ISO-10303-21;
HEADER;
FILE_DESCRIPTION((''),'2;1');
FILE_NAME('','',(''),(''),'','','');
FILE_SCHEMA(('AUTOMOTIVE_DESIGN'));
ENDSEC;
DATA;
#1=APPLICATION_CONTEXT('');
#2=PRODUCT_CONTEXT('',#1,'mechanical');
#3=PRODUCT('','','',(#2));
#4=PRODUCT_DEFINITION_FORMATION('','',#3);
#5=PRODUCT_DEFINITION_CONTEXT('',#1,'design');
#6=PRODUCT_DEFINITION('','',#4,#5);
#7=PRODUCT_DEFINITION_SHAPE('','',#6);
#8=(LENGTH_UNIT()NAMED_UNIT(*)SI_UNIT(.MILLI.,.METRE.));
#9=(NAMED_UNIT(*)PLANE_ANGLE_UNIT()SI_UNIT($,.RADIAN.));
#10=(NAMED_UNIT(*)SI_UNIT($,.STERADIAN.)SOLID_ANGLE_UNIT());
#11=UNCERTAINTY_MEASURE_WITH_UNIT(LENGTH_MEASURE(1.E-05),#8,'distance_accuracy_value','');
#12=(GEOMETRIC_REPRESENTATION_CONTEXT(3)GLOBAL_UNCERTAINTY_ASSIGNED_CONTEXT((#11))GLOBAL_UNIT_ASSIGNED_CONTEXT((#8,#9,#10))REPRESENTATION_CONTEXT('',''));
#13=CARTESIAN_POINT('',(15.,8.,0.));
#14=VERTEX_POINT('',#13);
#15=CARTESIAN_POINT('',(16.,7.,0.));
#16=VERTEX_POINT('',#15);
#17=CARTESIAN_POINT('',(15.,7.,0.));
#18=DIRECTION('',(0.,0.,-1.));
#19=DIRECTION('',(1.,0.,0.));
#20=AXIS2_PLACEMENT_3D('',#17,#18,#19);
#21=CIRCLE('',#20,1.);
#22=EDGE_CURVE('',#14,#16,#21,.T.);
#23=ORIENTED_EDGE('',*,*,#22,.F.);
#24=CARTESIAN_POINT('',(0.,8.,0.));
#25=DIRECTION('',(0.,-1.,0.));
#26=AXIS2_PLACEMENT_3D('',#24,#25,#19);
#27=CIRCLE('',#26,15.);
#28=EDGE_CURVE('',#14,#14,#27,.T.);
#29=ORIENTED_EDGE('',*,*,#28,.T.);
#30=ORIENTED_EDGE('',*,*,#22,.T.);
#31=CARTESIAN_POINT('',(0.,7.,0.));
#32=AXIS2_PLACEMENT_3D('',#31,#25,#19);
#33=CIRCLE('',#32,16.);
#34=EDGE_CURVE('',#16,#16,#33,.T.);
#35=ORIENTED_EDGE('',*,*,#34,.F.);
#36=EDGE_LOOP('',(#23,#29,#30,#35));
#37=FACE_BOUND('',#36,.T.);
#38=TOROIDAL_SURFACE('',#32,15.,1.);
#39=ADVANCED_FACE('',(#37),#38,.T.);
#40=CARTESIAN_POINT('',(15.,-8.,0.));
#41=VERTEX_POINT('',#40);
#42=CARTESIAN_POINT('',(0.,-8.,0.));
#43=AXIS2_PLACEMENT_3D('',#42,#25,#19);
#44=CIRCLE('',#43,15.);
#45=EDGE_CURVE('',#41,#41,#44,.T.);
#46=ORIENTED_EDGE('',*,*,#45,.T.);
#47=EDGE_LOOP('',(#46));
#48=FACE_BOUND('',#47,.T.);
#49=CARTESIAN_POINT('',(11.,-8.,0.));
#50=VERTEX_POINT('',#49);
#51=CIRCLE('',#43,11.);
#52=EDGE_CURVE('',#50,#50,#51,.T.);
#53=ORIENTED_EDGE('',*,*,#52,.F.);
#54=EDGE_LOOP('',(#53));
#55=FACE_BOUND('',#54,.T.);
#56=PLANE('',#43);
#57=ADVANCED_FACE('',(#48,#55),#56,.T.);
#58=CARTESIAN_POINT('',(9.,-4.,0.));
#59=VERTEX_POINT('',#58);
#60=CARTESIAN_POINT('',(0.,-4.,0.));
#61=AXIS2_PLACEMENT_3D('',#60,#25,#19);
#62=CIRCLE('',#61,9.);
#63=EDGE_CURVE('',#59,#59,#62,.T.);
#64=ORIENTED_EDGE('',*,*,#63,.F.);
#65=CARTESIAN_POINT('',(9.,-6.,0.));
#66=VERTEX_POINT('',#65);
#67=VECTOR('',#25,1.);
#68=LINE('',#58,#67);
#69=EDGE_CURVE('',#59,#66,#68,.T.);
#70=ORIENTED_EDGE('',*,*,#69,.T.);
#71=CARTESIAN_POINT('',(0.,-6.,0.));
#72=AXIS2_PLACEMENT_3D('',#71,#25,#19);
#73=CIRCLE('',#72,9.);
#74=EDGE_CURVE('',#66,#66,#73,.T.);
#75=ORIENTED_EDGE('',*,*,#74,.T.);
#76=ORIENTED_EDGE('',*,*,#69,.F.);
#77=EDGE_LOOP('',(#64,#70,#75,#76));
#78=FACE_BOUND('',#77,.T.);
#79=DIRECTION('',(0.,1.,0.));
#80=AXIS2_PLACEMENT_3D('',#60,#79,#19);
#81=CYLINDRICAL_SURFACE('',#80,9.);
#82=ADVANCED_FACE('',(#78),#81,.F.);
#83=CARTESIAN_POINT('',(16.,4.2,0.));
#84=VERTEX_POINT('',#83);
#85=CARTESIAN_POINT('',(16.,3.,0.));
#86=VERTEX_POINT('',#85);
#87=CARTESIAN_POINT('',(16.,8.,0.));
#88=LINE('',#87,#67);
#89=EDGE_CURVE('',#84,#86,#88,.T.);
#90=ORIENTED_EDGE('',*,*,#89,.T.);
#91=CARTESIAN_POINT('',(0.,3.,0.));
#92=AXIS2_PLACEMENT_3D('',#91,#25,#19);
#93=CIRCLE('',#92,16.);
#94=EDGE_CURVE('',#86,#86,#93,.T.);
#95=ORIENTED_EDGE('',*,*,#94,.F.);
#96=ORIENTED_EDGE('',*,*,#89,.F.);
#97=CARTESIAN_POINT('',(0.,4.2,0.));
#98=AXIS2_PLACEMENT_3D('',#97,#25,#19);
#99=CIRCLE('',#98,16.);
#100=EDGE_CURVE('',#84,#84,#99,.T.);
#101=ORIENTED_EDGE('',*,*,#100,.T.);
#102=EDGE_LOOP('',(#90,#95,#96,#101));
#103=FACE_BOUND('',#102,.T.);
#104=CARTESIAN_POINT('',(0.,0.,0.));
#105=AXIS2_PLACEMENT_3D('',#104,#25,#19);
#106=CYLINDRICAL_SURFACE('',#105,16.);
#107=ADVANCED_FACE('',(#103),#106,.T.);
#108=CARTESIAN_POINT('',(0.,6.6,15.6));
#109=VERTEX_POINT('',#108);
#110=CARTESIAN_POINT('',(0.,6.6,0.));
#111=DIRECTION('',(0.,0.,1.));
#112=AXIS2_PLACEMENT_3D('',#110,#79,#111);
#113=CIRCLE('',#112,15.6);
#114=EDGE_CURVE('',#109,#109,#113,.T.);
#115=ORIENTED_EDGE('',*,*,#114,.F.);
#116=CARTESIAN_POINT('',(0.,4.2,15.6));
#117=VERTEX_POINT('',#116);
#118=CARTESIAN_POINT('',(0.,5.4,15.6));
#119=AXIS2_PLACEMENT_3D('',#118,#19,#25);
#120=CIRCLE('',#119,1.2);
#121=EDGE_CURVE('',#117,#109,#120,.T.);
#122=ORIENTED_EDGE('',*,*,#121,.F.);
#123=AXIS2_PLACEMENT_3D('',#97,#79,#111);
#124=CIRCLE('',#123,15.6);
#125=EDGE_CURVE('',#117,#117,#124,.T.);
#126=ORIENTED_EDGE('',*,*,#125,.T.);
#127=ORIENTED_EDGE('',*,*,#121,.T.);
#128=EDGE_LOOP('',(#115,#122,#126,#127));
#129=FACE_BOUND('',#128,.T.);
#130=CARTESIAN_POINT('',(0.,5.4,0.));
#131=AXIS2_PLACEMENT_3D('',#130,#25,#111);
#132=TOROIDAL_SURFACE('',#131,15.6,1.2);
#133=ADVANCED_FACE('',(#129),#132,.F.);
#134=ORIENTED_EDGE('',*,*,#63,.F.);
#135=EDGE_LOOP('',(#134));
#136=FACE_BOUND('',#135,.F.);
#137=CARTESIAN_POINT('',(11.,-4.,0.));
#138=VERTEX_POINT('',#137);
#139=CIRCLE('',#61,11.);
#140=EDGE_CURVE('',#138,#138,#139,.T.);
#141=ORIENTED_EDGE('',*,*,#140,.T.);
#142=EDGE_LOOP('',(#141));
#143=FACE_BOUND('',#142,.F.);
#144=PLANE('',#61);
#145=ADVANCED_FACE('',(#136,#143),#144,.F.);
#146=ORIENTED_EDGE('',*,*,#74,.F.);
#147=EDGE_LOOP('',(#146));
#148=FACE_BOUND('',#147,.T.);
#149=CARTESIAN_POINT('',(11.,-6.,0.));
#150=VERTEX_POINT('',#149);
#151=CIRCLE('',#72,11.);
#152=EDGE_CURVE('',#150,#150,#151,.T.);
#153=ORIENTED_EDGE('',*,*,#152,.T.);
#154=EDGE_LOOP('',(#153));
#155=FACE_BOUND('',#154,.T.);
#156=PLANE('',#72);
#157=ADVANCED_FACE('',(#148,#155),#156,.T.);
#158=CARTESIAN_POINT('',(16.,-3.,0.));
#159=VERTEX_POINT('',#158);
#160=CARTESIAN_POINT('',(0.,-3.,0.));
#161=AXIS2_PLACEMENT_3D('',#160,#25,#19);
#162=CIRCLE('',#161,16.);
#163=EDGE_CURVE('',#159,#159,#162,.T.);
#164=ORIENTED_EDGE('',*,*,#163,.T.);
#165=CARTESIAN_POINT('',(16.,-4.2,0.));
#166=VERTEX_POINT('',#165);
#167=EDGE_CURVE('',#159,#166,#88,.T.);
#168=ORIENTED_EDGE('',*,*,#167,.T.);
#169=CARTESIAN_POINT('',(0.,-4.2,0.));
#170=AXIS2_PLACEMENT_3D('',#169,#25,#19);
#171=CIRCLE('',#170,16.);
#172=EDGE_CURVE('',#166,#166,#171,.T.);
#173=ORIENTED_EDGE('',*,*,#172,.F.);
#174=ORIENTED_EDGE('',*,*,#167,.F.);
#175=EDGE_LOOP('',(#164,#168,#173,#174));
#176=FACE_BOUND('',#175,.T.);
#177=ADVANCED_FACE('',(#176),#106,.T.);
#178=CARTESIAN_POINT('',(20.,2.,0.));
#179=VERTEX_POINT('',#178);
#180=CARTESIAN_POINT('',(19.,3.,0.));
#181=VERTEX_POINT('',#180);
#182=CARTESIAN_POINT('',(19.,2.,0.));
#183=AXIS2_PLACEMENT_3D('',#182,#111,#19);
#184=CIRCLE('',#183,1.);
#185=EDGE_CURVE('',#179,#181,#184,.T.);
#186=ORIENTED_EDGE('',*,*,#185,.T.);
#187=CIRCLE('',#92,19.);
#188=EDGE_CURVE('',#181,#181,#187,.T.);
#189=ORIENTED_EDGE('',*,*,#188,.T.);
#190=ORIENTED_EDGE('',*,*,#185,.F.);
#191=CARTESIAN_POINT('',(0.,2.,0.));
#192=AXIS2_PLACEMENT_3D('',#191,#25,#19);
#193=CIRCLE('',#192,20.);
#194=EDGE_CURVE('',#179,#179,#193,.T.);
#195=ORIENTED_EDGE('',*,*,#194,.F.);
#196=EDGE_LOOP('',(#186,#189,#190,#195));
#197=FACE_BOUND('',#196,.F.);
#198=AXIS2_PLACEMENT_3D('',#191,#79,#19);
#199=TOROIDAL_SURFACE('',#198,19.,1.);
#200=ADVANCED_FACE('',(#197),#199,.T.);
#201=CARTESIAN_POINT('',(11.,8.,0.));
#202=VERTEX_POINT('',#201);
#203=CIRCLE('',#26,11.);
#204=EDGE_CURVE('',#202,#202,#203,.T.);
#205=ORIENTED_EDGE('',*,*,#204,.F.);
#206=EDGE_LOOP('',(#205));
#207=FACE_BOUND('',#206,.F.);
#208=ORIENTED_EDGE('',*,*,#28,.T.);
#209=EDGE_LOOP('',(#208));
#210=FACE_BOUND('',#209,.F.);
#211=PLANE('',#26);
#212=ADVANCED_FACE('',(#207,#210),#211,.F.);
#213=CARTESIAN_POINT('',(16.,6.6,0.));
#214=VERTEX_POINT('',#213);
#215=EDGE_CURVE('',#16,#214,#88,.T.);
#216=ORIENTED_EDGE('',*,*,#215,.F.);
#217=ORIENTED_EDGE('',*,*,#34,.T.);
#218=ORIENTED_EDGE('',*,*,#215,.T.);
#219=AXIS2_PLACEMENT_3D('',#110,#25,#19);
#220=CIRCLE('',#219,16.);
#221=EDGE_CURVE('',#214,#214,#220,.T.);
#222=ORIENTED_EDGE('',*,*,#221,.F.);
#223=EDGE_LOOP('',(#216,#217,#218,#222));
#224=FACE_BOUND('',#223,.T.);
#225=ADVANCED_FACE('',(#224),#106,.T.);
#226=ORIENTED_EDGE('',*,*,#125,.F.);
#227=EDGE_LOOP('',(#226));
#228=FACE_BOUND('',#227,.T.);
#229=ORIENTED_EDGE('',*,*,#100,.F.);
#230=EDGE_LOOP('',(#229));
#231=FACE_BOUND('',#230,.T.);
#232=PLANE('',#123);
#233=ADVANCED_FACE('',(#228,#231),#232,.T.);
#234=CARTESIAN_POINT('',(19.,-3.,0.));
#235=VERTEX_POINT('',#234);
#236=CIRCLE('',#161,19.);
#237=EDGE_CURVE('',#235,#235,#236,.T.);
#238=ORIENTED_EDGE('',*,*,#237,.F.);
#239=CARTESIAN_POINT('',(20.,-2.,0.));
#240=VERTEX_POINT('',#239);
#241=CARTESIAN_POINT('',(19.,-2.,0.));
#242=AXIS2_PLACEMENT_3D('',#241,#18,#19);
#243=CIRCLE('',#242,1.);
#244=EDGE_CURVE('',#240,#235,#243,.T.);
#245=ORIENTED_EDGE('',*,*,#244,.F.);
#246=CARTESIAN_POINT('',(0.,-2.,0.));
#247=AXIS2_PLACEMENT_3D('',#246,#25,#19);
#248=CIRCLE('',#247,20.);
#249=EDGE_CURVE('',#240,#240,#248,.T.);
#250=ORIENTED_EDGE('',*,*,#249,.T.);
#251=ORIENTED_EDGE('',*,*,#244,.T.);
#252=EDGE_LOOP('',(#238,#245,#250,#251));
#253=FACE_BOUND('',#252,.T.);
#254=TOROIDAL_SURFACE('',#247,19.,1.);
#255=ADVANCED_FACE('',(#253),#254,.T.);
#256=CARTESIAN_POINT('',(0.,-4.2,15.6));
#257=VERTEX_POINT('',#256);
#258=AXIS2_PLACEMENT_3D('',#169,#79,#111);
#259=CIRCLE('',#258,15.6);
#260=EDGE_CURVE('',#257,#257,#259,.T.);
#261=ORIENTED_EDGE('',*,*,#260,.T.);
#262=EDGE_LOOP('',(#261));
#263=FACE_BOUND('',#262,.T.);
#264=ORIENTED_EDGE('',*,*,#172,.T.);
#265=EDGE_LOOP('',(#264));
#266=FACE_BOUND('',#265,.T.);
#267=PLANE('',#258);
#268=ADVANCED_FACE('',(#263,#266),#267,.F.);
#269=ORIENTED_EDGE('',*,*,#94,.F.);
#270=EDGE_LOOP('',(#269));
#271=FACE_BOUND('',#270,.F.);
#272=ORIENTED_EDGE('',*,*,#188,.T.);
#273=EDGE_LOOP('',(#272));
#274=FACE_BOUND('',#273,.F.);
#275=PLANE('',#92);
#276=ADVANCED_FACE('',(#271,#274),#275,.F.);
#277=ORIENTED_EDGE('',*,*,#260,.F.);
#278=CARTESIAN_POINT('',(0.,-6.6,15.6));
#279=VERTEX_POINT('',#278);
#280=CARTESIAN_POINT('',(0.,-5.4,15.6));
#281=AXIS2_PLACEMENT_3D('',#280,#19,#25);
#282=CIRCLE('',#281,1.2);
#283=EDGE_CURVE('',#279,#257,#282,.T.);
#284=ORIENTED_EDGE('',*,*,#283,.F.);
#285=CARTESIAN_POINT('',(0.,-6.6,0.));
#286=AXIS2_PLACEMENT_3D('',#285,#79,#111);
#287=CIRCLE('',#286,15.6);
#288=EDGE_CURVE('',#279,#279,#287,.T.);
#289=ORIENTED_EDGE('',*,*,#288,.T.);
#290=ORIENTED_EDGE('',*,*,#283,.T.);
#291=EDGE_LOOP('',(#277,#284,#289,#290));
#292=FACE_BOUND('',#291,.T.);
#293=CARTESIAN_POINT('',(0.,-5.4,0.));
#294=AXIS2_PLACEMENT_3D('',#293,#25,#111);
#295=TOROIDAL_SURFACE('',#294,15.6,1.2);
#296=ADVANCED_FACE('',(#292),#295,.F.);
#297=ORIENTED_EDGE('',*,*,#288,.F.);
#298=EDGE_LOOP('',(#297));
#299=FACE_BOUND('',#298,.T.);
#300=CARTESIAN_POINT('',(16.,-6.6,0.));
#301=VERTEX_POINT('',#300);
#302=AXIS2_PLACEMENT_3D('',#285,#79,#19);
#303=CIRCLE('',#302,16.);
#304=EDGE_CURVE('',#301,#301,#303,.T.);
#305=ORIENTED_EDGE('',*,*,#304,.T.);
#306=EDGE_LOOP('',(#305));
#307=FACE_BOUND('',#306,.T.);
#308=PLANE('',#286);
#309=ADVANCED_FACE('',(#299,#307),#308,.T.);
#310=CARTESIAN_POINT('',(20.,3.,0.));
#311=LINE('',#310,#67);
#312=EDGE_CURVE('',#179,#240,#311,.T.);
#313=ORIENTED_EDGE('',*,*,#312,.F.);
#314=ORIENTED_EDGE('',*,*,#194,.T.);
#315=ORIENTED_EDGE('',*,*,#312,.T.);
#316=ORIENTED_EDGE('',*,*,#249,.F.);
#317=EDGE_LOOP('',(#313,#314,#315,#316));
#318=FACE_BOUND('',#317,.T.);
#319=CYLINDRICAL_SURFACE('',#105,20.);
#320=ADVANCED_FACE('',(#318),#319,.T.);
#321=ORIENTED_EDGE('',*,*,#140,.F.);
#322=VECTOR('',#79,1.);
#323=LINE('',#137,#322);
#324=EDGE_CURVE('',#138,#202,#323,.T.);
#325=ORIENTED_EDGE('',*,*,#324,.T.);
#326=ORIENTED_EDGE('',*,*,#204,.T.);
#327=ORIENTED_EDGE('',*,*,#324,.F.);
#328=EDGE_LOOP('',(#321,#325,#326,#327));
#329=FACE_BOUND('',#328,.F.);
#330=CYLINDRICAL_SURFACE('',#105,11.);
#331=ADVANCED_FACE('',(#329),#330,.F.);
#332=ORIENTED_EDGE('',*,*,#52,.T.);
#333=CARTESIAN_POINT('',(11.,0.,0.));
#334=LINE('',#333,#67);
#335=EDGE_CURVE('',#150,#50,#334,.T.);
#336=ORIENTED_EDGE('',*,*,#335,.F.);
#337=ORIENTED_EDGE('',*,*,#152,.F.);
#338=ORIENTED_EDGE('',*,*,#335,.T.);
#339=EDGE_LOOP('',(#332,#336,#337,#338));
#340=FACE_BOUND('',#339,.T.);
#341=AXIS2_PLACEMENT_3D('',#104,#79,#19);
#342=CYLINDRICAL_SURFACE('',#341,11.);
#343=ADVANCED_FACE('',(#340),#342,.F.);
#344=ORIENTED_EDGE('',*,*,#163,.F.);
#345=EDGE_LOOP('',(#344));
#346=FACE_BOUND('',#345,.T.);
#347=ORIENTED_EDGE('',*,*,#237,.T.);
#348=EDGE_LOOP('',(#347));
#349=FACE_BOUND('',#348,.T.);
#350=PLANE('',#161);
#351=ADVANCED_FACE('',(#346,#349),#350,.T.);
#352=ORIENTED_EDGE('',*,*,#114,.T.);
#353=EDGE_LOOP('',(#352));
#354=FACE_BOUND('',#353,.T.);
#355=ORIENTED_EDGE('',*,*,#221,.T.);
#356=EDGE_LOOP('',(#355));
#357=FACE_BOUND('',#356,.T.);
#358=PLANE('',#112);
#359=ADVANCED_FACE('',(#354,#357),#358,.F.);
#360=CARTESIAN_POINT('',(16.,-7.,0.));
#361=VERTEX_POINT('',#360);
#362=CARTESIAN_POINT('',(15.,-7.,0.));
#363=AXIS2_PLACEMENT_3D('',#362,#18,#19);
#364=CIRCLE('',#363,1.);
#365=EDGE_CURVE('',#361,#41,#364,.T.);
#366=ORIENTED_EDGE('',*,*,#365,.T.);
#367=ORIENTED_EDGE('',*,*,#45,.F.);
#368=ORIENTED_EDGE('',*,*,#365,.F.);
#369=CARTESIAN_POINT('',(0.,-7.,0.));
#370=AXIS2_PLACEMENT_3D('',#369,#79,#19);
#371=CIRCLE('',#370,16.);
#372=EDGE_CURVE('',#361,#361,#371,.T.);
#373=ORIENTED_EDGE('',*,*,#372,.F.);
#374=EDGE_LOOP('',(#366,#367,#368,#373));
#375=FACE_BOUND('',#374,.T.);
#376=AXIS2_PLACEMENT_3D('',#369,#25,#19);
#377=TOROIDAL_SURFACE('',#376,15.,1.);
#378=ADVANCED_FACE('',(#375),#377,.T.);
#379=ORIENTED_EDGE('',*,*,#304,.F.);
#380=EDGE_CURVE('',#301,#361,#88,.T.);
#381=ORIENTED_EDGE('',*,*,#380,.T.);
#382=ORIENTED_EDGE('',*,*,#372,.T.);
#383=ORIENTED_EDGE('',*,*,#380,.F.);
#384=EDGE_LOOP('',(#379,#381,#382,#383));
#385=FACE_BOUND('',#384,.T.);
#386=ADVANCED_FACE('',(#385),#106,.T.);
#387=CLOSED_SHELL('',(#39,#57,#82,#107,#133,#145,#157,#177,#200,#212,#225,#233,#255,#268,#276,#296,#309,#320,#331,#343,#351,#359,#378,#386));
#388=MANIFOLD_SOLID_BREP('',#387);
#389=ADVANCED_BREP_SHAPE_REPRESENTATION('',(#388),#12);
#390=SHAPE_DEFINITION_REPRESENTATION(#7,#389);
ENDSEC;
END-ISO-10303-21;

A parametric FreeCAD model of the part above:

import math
import FreeCAD as App
import Part
import Sketcher

V = App.Vector


def edges_at(feature, points):
    """Names of the edges that pass closest to the given points."""
    edges = feature.Shape.Edges
    near = lambda p: min(range(len(edges)), key=lambda i: edges[i].distToShape(Part.Vertex(*p))[0])
    return sorted({f"Edge{near(p) + 1}" for p in points})

doc = App.newDocument("Part")
body = doc.addObject("PartDesign::Body", "Body")

sketch1 = body.newObject("Sketcher::SketchObject", "Sketch")
sketch1.AttachmentSupport = (doc.getObject("XZ_Plane"), [""])
sketch1.MapMode = "FlatFace"
sketch1.addGeometry(Part.Circle(V(0, 0, 0), V(0, 0, 1), 16), False)
sketch1.addGeometry(Part.Circle(V(0, 0, 0), V(0, 0, 1), 11), False)
sketch1.addConstraint(Sketcher.Constraint("Coincident", 0, 3, -1, 1))
sketch1.addConstraint(Sketcher.Constraint("Coincident", 1, 3, -1, 1))
sketch1.addConstraint(Sketcher.Constraint("Diameter", 0, 32.0))
sketch1.addConstraint(Sketcher.Constraint("Diameter", 1, 22.0))
pad1 = body.newObject("PartDesign::Pad", "Pad")
pad1.Profile = sketch1
pad1.Type = "TwoLengths"
pad1.Length = 8
pad1.Length2 = 8

sketch2 = body.newObject("Sketcher::SketchObject", "Sketch001")
sketch2.AttachmentSupport = (doc.getObject("XZ_Plane"), [""])
sketch2.MapMode = "FlatFace"
sketch2.addGeometry(Part.Circle(V(0, 0, 0), V(0, 0, 1), 20), False)
sketch2.addGeometry(Part.Circle(V(0, 0, 0), V(0, 0, 1), 16), False)
sketch2.addConstraint(Sketcher.Constraint("Coincident", 0, 3, -1, 1))
sketch2.addConstraint(Sketcher.Constraint("Coincident", 1, 3, -1, 1))
sketch2.addConstraint(Sketcher.Constraint("Diameter", 0, 40.0))
sketch2.addConstraint(Sketcher.Constraint("Diameter", 1, 32.0))
pad2 = body.newObject("PartDesign::Pad", "Pad001")
pad2.Profile = sketch2
pad2.Type = "TwoLengths"
pad2.Length = 3
pad2.Length2 = 3
doc.recompute()

fillet = body.newObject("PartDesign::Fillet", "Fillet")
fillet.Base = (pad2, edges_at(pad2, [
    (-20, -3, 0),
    (-20, 3, 0),
    (-16, -8, 0),
    (-16, 8, 0),
]))
fillet.Radius = 1

sketch3 = body.newObject("Sketcher::SketchObject", "Sketch002")
sketch3.AttachmentSupport = (doc.getObject("XZ_Plane"), [""])
sketch3.MapMode = "FlatFace"
sketch3.AttachmentOffset = App.Placement(V(0, 0, 4), App.Rotation())
sketch3.addGeometry(Part.Circle(V(0, 0, 0), V(0, 0, 1), 11), False)
sketch3.addGeometry(Part.Circle(V(0, 0, 0), V(0, 0, 1), 9), False)
sketch3.addConstraint(Sketcher.Constraint("Coincident", 0, 3, -1, 1))
sketch3.addConstraint(Sketcher.Constraint("Coincident", 1, 3, -1, 1))
sketch3.addConstraint(Sketcher.Constraint("Diameter", 0, 22.0))
sketch3.addConstraint(Sketcher.Constraint("Diameter", 1, 18.0))
pad3 = body.newObject("PartDesign::Pad", "Pad002")
pad3.Profile = sketch3
pad3.Length = 2

sketch4 = body.newObject("Sketcher::SketchObject", "Sketch003")
sketch4.AttachmentSupport = (doc.getObject("YZ_Plane"), [""])
sketch4.MapMode = "FlatFace"
sketch4.addGeometry(Part.LineSegment(V(-4.2, 15.6, 0), V(-4.2, 22.18, 0)), False)
sketch4.addGeometry(Part.LineSegment(V(-4.2, 22.18, 0), V(4.2, 22.18, 0)), False)
sketch4.addGeometry(Part.LineSegment(V(4.2, 22.18, 0), V(4.2, 15.6, 0)), False)
sketch4.addGeometry(Part.ArcOfCircle(Part.Circle(V(5.4, 15.6, 0), V(0, 0, 1), 1.2), math.radians(180), math.radians(360)), False)
sketch4.addGeometry(Part.LineSegment(V(6.6, 15.6, 0), V(6.6, 16, 0)), False)
sketch4.addGeometry(Part.LineSegment(V(6.6, 16, 0), V(12.97, 16, 0)), False)
sketch4.addGeometry(Part.LineSegment(V(12.97, 16, 0), V(12.97, 0, 0)), False)
sketch4.addGeometry(Part.LineSegment(V(12.97, 0, 0), V(17.36, 0, 0)), False)
sketch4.addGeometry(Part.LineSegment(V(17.36, 0, 0), V(17.36, 23.62, 0)), False)
sketch4.addGeometry(Part.LineSegment(V(17.36, 23.62, 0), V(-17.36, 23.62, 0)), False)
sketch4.addGeometry(Part.LineSegment(V(-17.36, 23.62, 0), V(-17.36, 0, 0)), False)
sketch4.addGeometry(Part.LineSegment(V(-17.36, 0, 0), V(-12.97, 0, 0)), False)
sketch4.addGeometry(Part.LineSegment(V(-12.97, 0, 0), V(-12.97, 16, 0)), False)
sketch4.addGeometry(Part.LineSegment(V(-12.97, 16, 0), V(-6.6, 16, 0)), False)
sketch4.addGeometry(Part.LineSegment(V(-6.6, 16, 0), V(-6.6, 15.6, 0)), False)
sketch4.addGeometry(Part.ArcOfCircle(Part.Circle(V(-5.4, 15.6, 0), V(0, 0, 1), 1.2), math.radians(180), math.radians(360)), False)
sketch4.addConstraint(Sketcher.Constraint("Coincident", 0, 2, 1, 1))
sketch4.addConstraint(Sketcher.Constraint("Coincident", 1, 2, 2, 1))
sketch4.addConstraint(Sketcher.Constraint("Tangent", 2, 2, 3, 1))
sketch4.addConstraint(Sketcher.Constraint("Tangent", 3, 2, 4, 1))
sketch4.addConstraint(Sketcher.Constraint("Coincident", 4, 2, 5, 1))
sketch4.addConstraint(Sketcher.Constraint("Coincident", 5, 2, 6, 1))
sketch4.addConstraint(Sketcher.Constraint("Coincident", 6, 2, 7, 1))
sketch4.addConstraint(Sketcher.Constraint("Coincident", 7, 2, 8, 1))
sketch4.addConstraint(Sketcher.Constraint("Coincident", 8, 2, 9, 1))
sketch4.addConstraint(Sketcher.Constraint("Coincident", 9, 2, 10, 1))
sketch4.addConstraint(Sketcher.Constraint("Coincident", 10, 2, 11, 1))
sketch4.addConstraint(Sketcher.Constraint("Coincident", 11, 2, 12, 1))
sketch4.addConstraint(Sketcher.Constraint("Coincident", 12, 2, 13, 1))
sketch4.addConstraint(Sketcher.Constraint("Coincident", 13, 2, 14, 1))
sketch4.addConstraint(Sketcher.Constraint("Tangent", 14, 2, 15, 1))
sketch4.addConstraint(Sketcher.Constraint("Tangent", 15, 2, 0, 1))
sketch4.addConstraint(Sketcher.Constraint("Vertical", 0))
sketch4.addConstraint(Sketcher.Constraint("Horizontal", 1))
sketch4.addConstraint(Sketcher.Constraint("Vertical", 2))
sketch4.addConstraint(Sketcher.Constraint("Vertical", 4))
sketch4.addConstraint(Sketcher.Constraint("Horizontal", 5))
sketch4.addConstraint(Sketcher.Constraint("Vertical", 6))
sketch4.addConstraint(Sketcher.Constraint("Horizontal", 7))
sketch4.addConstraint(Sketcher.Constraint("Vertical", 8))
sketch4.addConstraint(Sketcher.Constraint("Horizontal", 9))
sketch4.addConstraint(Sketcher.Constraint("Vertical", 10))
sketch4.addConstraint(Sketcher.Constraint("Horizontal", 11))
sketch4.addConstraint(Sketcher.Constraint("Vertical", 12))
sketch4.addConstraint(Sketcher.Constraint("Horizontal", 13))
sketch4.addConstraint(Sketcher.Constraint("Vertical", 14))
sketch4.addConstraint(Sketcher.Constraint("Equal", 3, 15))
sketch4.addConstraint(Sketcher.Constraint("Symmetric", 7, 2, 10, 2, -1, 1))
sketch4.addConstraint(Sketcher.Constraint("Symmetric", 3, 3, 15, 3, -2))
sketch4.addConstraint(Sketcher.Constraint("Symmetric", 6, 2, 11, 2, -2))
sketch4.addConstraint(Sketcher.Constraint("Horizontal", 5, 2, 12, 2))
sketch4.addConstraint(Sketcher.Constraint("Radius", 3, 1.2))
sketch4.addConstraint(Sketcher.Constraint("DistanceY", 6, 2, 6, 1, 16.0))
sketch4.addConstraint(Sketcher.Constraint("DistanceX", 1, 1, 1, 2, 8.4))
sketch4.addConstraint(Sketcher.Constraint("DistanceY", 4, 1, 4, 2, 0.4))
sketch4.addConstraint(Sketcher.Constraint("DistanceX", 5, 1, 5, 2, 6.373129))
sketch4.addConstraint(Sketcher.Constraint("DistanceX", 9, 2, 9, 1, 34.719449))
sketch4.addConstraint(Sketcher.Constraint("DistanceY", 8, 1, 8, 2, 23.623278))
sketch4.addConstraint(Sketcher.Constraint("DistanceY", 0, 1, 0, 2, 6.582764))
groove = body.newObject("PartDesign::Groove", "Groove")
groove.Profile = sketch4
groove.ReferenceAxis = (sketch4, ["H_Axis"])
groove.Angle = 360

doc.recompute()
